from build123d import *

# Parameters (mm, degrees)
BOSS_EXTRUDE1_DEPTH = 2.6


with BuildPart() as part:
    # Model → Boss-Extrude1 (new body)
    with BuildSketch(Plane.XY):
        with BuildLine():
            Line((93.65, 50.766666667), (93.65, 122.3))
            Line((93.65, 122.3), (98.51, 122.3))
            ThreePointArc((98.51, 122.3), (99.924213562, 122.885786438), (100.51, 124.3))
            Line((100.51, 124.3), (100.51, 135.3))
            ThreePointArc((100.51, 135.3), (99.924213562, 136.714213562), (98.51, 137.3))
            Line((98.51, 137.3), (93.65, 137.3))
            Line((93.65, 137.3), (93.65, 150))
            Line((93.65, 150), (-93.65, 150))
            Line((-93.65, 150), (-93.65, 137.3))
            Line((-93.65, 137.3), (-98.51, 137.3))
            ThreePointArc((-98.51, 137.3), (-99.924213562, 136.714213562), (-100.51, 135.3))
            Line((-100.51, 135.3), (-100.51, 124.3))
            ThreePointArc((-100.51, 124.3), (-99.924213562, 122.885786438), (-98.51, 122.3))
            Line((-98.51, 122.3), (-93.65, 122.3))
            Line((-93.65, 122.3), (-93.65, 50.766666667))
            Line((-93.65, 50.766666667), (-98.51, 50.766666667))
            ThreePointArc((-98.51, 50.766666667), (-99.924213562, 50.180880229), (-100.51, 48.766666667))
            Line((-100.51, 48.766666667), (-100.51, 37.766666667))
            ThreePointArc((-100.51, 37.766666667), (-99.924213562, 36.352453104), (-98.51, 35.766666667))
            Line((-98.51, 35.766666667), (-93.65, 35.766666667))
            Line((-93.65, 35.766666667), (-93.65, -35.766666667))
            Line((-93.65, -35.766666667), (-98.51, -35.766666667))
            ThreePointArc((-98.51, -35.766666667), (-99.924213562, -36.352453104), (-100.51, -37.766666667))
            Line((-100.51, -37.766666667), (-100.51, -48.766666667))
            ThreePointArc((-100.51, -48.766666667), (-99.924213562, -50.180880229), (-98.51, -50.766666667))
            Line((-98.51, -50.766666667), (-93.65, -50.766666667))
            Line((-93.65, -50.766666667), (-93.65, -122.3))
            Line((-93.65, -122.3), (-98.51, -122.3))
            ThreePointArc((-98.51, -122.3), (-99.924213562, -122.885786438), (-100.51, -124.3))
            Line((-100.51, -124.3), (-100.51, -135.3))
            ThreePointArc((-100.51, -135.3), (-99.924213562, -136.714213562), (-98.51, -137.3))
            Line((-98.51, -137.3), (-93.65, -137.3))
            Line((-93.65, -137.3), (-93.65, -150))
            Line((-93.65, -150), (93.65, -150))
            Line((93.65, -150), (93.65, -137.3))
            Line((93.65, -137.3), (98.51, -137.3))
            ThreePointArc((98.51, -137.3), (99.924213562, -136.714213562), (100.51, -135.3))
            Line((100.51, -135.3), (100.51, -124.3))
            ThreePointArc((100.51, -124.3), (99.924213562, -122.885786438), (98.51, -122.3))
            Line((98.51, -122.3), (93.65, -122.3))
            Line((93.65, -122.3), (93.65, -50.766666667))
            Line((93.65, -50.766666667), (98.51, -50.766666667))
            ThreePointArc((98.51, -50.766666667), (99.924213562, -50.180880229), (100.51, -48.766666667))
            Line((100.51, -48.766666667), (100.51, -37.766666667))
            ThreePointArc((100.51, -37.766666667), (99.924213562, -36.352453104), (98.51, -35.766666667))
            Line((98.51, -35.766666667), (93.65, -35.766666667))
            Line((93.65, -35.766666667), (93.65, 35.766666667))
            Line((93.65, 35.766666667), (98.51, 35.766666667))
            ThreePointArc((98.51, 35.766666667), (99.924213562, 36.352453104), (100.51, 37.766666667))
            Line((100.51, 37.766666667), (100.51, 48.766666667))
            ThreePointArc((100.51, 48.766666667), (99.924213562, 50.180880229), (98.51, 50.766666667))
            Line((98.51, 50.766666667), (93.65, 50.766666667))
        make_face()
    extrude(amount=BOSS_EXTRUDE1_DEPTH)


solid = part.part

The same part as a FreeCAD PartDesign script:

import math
import FreeCAD as App
import Part
import Sketcher
from FreeCAD import Vector

doc = App.newDocument("Part")
body = doc.addObject("PartDesign::Body", "Body")

# Sketch on XY plane
sketch1 = body.newObject("Sketcher::SketchObject", "Sketch")
sketch1.AttachmentSupport = (doc.getObject("XY_Plane"), [""])
sketch1.MapMode = "FlatFace"
sketch1.addGeometry(Part.LineSegment(Vector(93.65, 50.766667, 0), Vector(93.65, 122.3, 0)), False)
sketch1.addGeometry(Part.LineSegment(Vector(93.65, 122.3, 0), Vector(98.51, 122.3, 0)), False)
sketch1.addGeometry(Part.ArcOfCircle(Part.Circle(Vector(98.51, 124.3, 0), Vector(0, 0, 1), 2), math.radians(-90), math.radians(0)), False)
sketch1.addGeometry(Part.LineSegment(Vector(100.51, 124.3, 0), Vector(100.51, 135.3, 0)), False)
sketch1.addGeometry(Part.ArcOfCircle(Part.Circle(Vector(98.51, 135.3, 0), Vector(0, 0, 1), 2), math.radians(0), math.radians(90)), False)
sketch1.addGeometry(Part.LineSegment(Vector(98.51, 137.3, 0), Vector(93.65, 137.3, 0)), False)
sketch1.addGeometry(Part.LineSegment(Vector(93.65, 137.3, 0), Vector(93.65, 150, 0)), False)
sketch1.addGeometry(Part.LineSegment(Vector(93.65, 150, 0), Vector(-93.65, 150, 0)), False)
sketch1.addGeometry(Part.LineSegment(Vector(-93.65, 150, 0), Vector(-93.65, 137.3, 0)), False)
sketch1.addGeometry(Part.LineSegment(Vector(-93.65, 137.3, 0), Vector(-98.51, 137.3, 0)), False)
sketch1.addGeometry(Part.ArcOfCircle(Part.Circle(Vector(-98.51, 135.3, 0), Vector(0, 0, 1), 2), math.radians(90), math.radians(180)), False)
sketch1.addGeometry(Part.LineSegment(Vector(-100.51, 135.3, 0), Vector(-100.51, 124.3, 0)), False)
sketch1.addGeometry(Part.ArcOfCircle(Part.Circle(Vector(-98.51, 124.3, 0), Vector(0, 0, 1), 2), math.radians(-180), math.radians(-90)), False)
sketch1.addGeometry(Part.LineSegment(Vector(-98.51, 122.3, 0), Vector(-93.65, 122.3, 0)), False)
sketch1.addGeometry(Part.LineSegment(Vector(-93.65, 122.3, 0), Vector(-93.65, 50.766667, 0)), False)
sketch1.addGeometry(Part.LineSegment(Vector(-93.65, 50.766667, 0), Vector(-98.51, 50.766667, 0)), False)
sketch1.addGeometry(Part.ArcOfCircle(Part.Circle(Vector(-98.51, 48.766667, 0), Vector(0, 0, 1), 2), math.radians(90), math.radians(180)), False)
sketch1.addGeometry(Part.LineSegment(Vector(-100.51, 48.766667, 0), Vector(-100.51, 37.766667, 0)), False)
sketch1.addGeometry(Part.ArcOfCircle(Part.Circle(Vector(-98.51, 37.766667, 0), Vector(0, 0, 1), 2), math.radians(180), math.radians(270)), False)
sketch1.addGeometry(Part.LineSegment(Vector(-98.51, 35.766667, 0), Vector(-93.65, 35.766667, 0)), False)
sketch1.addGeometry(Part.LineSegment(Vector(-93.65, 35.766667, 0), Vector(-93.65, -35.766667, 0)), False)
sketch1.addGeometry(Part.LineSegment(Vector(-93.65, -35.766667, 0), Vector(-98.51, -35.766667, 0)), False)
sketch1.addGeometry(Part.ArcOfCircle(Part.Circle(Vector(-98.51, -37.766667, 0), Vector(0, 0, 1), 2), math.radians(90), math.radians(180)), False)
sketch1.addGeometry(Part.LineSegment(Vector(-100.51, -37.766667, 0), Vector(-100.51, -48.766667, 0)), False)
sketch1.addGeometry(Part.ArcOfCircle(Part.Circle(Vector(-98.51, -48.766667, 0), Vector(0, 0, 1), 2), math.radians(-180), math.radians(-90)), False)
sketch1.addGeometry(Part.LineSegment(Vector(-98.51, -50.766667, 0), Vector(-93.65, -50.766667, 0)), False)
sketch1.addGeometry(Part.LineSegment(Vector(-93.65, -50.766667, 0), Vector(-93.65, -122.3, 0)), False)
sketch1.addGeometry(Part.LineSegment(Vector(-93.65, -122.3, 0), Vector(-98.51, -122.3, 0)), False)
sketch1.addGeometry(Part.ArcOfCircle(Part.Circle(Vector(-98.51, -124.3, 0), Vector(0, 0, 1), 2), math.radians(90), math.radians(180)), False)
sketch1.addGeometry(Part.LineSegment(Vector(-100.51, -124.3, 0), Vector(-100.51, -135.3, 0)), False)
sketch1.addGeometry(Part.ArcOfCircle(Part.Circle(Vector(-98.51, -135.3, 0), Vector(0, 0, 1), 2), math.radians(-180), math.radians(-90)), False)
sketch1.addGeometry(Part.LineSegment(Vector(-98.51, -137.3, 0), Vector(-93.65, -137.3, 0)), False)
sketch1.addGeometry(Part.LineSegment(Vector(-93.65, -137.3, 0), Vector(-93.65, -150, 0)), False)
sketch1.addGeometry(Part.LineSegment(Vector(-93.65, -150, 0), Vector(93.65, -150, 0)), False)
sketch1.addGeometry(Part.LineSegment(Vector(93.65, -150, 0), Vector(93.65, -137.3, 0)), False)
sketch1.addGeometry(Part.LineSegment(Vector(93.65, -137.3, 0), Vector(98.51, -137.3, 0)), False)
sketch1.addGeometry(Part.ArcOfCircle(Part.Circle(Vector(98.51, -135.3, 0), Vector(0, 0, 1), 2), math.radians(-90), math.radians(0)), False)
sketch1.addGeometry(Part.LineSegment(Vector(100.51, -135.3, 0), Vector(100.51, -124.3, 0)), False)
sketch1.addGeometry(Part.ArcOfCircle(Part.Circle(Vector(98.51, -124.3, 0), Vector(0, 0, 1), 2), math.radians(0), math.radians(90)), False)
sketch1.addGeometry(Part.LineSegment(Vector(98.51, -122.3, 0), Vector(93.65, -122.3, 0)), False)
sketch1.addGeometry(Part.LineSegment(Vector(93.65, -122.3, 0), Vector(93.65, -50.766667, 0)), False)
sketch1.addGeometry(Part.LineSegment(Vector(93.65, -50.766667, 0), Vector(98.51, -50.766667, 0)), False)
sketch1.addGeometry(Part.ArcOfCircle(Part.Circle(Vector(98.51, -48.766667, 0), Vector(0, 0, 1), 2), math.radians(-90), math.radians(0)), False)
sketch1.addGeometry(Part.LineSegment(Vector(100.51, -48.766667, 0), Vector(100.51, -37.766667, 0)), False)
sketch1.addGeometry(Part.ArcOfCircle(Part.Circle(Vector(98.51, -37.766667, 0), Vector(0, 0, 1), 2), math.radians(0), math.radians(90)), False)
sketch1.addGeometry(Part.LineSegment(Vector(98.51, -35.766667, 0), Vector(93.65, -35.766667, 0)), False)
sketch1.addGeometry(Part.LineSegment(Vector(93.65, -35.766667, 0), Vector(93.65, 35.766667, 0)), False)
sketch1.addGeometry(Part.LineSegment(Vector(93.65, 35.766667, 0), Vector(98.51, 35.766667, 0)), False)
sketch1.addGeometry(Part.ArcOfCircle(Part.Circle(Vector(98.51, 37.766667, 0), Vector(0, 0, 1), 2), math.radians(-90), math.radians(0)), False)
sketch1.addGeometry(Part.LineSegment(Vector(100.51, 37.766667, 0), Vector(100.51, 48.766667, 0)), False)
sketch1.addGeometry(Part.ArcOfCircle(Part.Circle(Vector(98.51, 48.766667, 0), Vector(0, 0, 1), 2), math.radians(0), math.radians(90)), False)
sketch1.addGeometry(Part.LineSegment(Vector(98.51, 50.766667, 0), Vector(93.65, 50.766667, 0)), False)
sketch1.addConstraint(Sketcher.Constraint("Coincident", 0, 2, 1, 1))
sketch1.addConstraint(Sketcher.Constraint("Tangent", 1, 2, 2, 1))
sketch1.addConstraint(Sketcher.Constraint("Tangent", 2, 2, 3, 1))
sketch1.addConstraint(Sketcher.Constraint("Tangent", 3, 2, 4, 1))
sketch1.addConstraint(Sketcher.Constraint("Tangent", 4, 2, 5, 1))
sketch1.addConstraint(Sketcher.Constraint("Coincident", 5, 2, 6, 1))
sketch1.addConstraint(Sketcher.Constraint("Coincident", 6, 2, 7, 1))
sketch1.addConstraint(Sketcher.Constraint("Coincident", 7, 2, 8, 1))
sketch1.addConstraint(Sketcher.Constraint("Coincident", 8, 2, 9, 1))
sketch1.addConstraint(Sketcher.Constraint("Tangent", 9, 2, 10, 1))
sketch1.addConstraint(Sketcher.Constraint("Tangent", 10, 2, 11, 1))
sketch1.addConstraint(Sketcher.Constraint("Tangent", 11, 2, 12, 1))
sketch1.addConstraint(Sketcher.Constraint("Tangent", 12, 2, 13, 1))
sketch1.addConstraint(Sketcher.Constraint("Coincident", 13, 2, 14, 1))
sketch1.addConstraint(Sketcher.Constraint("Coincident", 14, 2, 15, 1))
sketch1.addConstraint(Sketcher.Constraint("Tangent", 15, 2, 16, 1))
sketch1.addConstraint(Sketcher.Constraint("Tangent", 16, 2, 17, 1))
sketch1.addConstraint(Sketcher.Constraint("Tangent", 17, 2, 18, 1))
sketch1.addConstraint(Sketcher.Constraint("Tangent", 18, 2, 19, 1))
sketch1.addConstraint(Sketcher.Constraint("Coincident", 19, 2, 20, 1))
sketch1.addConstraint(Sketcher.Constraint("Coincident", 20, 2, 21, 1))
sketch1.addConstraint(Sketcher.Constraint("Tangent", 21, 2, 22, 1))
sketch1.addConstraint(Sketcher.Constraint("Tangent", 22, 2, 23, 1))
sketch1.addConstraint(Sketcher.Constraint("Tangent", 23, 2, 24, 1))
sketch1.addConstraint(Sketcher.Constraint("Tangent", 24, 2, 25, 1))
sketch1.addConstraint(Sketcher.Constraint("Coincident", 25, 2, 26, 1))
sketch1.addConstraint(Sketcher.Constraint("Coincident", 26, 2, 27, 1))
sketch1.addConstraint(Sketcher.Constraint("Tangent", 27, 2, 28, 1))
sketch1.addConstraint(Sketcher.Constraint("Tangent", 28, 2, 29, 1))
sketch1.addConstraint(Sketcher.Constraint("Tangent", 29, 2, 30, 1))
sketch1.addConstraint(Sketcher.Constraint("Tangent", 30, 2, 31, 1))
sketch1.addConstraint(Sketcher.Constraint("Coincident", 31, 2, 32, 1))
sketch1.addConstraint(Sketcher.Constraint("Coincident", 32, 2, 33, 1))
sketch1.addConstraint(Sketcher.Constraint("Coincident", 33, 2, 34, 1))
sketch1.addConstraint(Sketcher.Constraint("Coincident", 34, 2, 35, 1))
sketch1.addConstraint(Sketcher.Constraint("Tangent", 35, 2, 36, 1))
sketch1.addConstraint(Sketcher.Constraint("Tangent", 36, 2, 37, 1))
sketch1.addConstraint(Sketcher.Constraint("Tangent", 37, 2, 38, 1))
sketch1.addConstraint(Sketcher.Constraint("Tangent", 38, 2, 39, 1))
sketch1.addConstraint(Sketcher.Constraint("Coincident", 39, 2, 40, 1))
sketch1.addConstraint(Sketcher.Constraint("Coincident", 40, 2, 41, 1))
sketch1.addConstraint(Sketcher.Constraint("Tangent", 41, 2, 42, 1))
sketch1.addConstraint(Sketcher.Constraint("Tangent", 42, 2, 43, 1))
sketch1.addConstraint(Sketcher.Constraint("Tangent", 43, 2, 44, 1))
sketch1.addConstraint(Sketcher.Constraint("Tangent", 44, 2, 45, 1))
sketch1.addConstraint(Sketcher.Constraint("Coincident", 45, 2, 46, 1))
sketch1.addConstraint(Sketcher.Constraint("Coincident", 46, 2, 47, 1))
sketch1.addConstraint(Sketcher.Constraint("Tangent", 47, 2, 48, 1))
sketch1.addConstraint(Sketcher.Constraint("Tangent", 48, 2, 49, 1))
sketch1.addConstraint(Sketcher.Constraint("Tangent", 49, 2, 50, 1))
sketch1.addConstraint(Sketcher.Constraint("Tangent", 50, 2, 51, 1))
sketch1.addConstraint(Sketcher.Constraint("Coincident", 51, 2, 0, 1))
sketch1.addConstraint(Sketcher.Constraint("Vertical", 0))
sketch1.addConstraint(Sketcher.Constraint("Horizontal", 1))
sketch1.addConstraint(Sketcher.Constraint("Vertical", 3))
sketch1.addConstraint(Sketcher.Constraint("Horizontal", 5))
sketch1.addConstraint(Sketcher.Constraint("Vertical", 6))
sketch1.addConstraint(Sketcher.Constraint("Horizontal", 7))
sketch1.addConstraint(Sketcher.Constraint("Vertical", 8))
sketch1.addConstraint(Sketcher.Constraint("Horizontal", 9))
sketch1.addConstraint(Sketcher.Constraint("Vertical", 11))
sketch1.addConstraint(Sketcher.Constraint("Horizontal", 13))
sketch1.addConstraint(Sketcher.Constraint("Vertical", 14))
sketch1.addConstraint(Sketcher.Constraint("Horizontal", 15))
sketch1.addConstraint(Sketcher.Constraint("Vertical", 17))
sketch1.addConstraint(Sketcher.Constraint("Horizontal", 19))
sketch1.addConstraint(Sketcher.Constraint("Vertical", 20))
sketch1.addConstraint(Sketcher.Constraint("Horizontal", 21))
sketch1.addConstraint(Sketcher.Constraint("Vertical", 23))
sketch1.addConstraint(Sketcher.Constraint("Horizontal", 25))
sketch1.addConstraint(Sketcher.Constraint("Vertical", 26))
sketch1.addConstraint(Sketcher.Constraint("Horizontal", 27))
sketch1.addConstraint(Sketcher.Constraint("Vertical", 29))
sketch1.addConstraint(Sketcher.Constraint("Horizontal", 31))
sketch1.addConstraint(Sketcher.Constraint("Vertical", 32))
sketch1.addConstraint(Sketcher.Constraint("Horizontal", 33))
sketch1.addConstraint(Sketcher.Constraint("Vertical", 34))
sketch1.addConstraint(Sketcher.Constraint("Horizontal", 35))
sketch1.addConstraint(Sketcher.Constraint("Vertical", 37))
sketch1.addConstraint(Sketcher.Constraint("Horizontal", 39))
sketch1.addConstraint(Sketcher.Constraint("Vertical", 40))
sketch1.addConstraint(Sketcher.Constraint("Horizontal", 41))
sketch1.addConstraint(Sketcher.Constraint("Vertical", 43))
sketch1.addConstraint(Sketcher.Constraint("Horizontal", 45))
sketch1.addConstraint(Sketcher.Constraint("Vertical", 46))
sketch1.addConstraint(Sketcher.Constraint("Horizontal", 47))
sketch1.addConstraint(Sketcher.Constraint("Vertical", 49))
sketch1.addConstraint(Sketcher.Constraint("Horizontal", 51))
sketch1.addConstraint(Sketcher.Constraint("Equal", 2, 4))
sketch1.addConstraint(Sketcher.Constraint("Equal", 4, 10))
sketch1.addConstraint(Sketcher.Constraint("Equal", 10, 12))
sketch1.addConstraint(Sketcher.Constraint("Equal", 12, 16))
sketch1.addConstraint(Sketcher.Constraint("Equal", 16, 18))
sketch1.addConstraint(Sketcher.Constraint("Equal", 18, 22))
sketch1.addConstraint(Sketcher.Constraint("Equal", 22, 24))
sketch1.addConstraint(Sketcher.Constraint("Equal", 24, 28))
sketch1.addConstraint(Sketcher.Constraint("Equal", 28, 30))
sketch1.addConstraint(Sketcher.Constraint("Equal", 30, 36))
sketch1.addConstraint(Sketcher.Constraint("Equal", 36, 38))
sketch1.addConstraint(Sketcher.Constraint("Equal", 38, 42))
sketch1.addConstraint(Sketcher.Constraint("Equal", 42, 44))
sketch1.addConstraint(Sketcher.Constraint("Equal", 44, 48))
sketch1.addConstraint(Sketcher.Constraint("Equal", 48, 50))
sketch1.addConstraint(Sketcher.Constraint("Symmetric", 2, 3, 28, 3, -1, 1))
sketch1.addConstraint(Sketcher.Constraint("Symmetric", 10, 3, 36, 3, -1, 1))
sketch1.addConstraint(Sketcher.Constraint("Symmetric", 16, 3, 42, 3, -1, 1))
sketch1.addConstraint(Sketcher.Constraint("Symmetric", 22, 3, 48, 3, -1, 1))
sketch1.addConstraint(Sketcher.Constraint("Symmetric", 5, 2, 31, 2, -1, 1))
sketch1.addConstraint(Sketcher.Constraint("Symmetric", 7, 2, 33, 2, -1, 1))
sketch1.addConstraint(Sketcher.Constraint("Symmetric", 13, 2, 39, 2, -1, 1))
sketch1.addConstraint(Sketcher.Constraint("Symmetric", 19, 2, 45, 2, -1, 1))
sketch1.addConstraint(Sketcher.Constraint("Symmetric", 25, 2, 51, 2, -1, 1))
sketch1.addConstraint(Sketcher.Constraint("Symmetric", 4, 3, 10, 3, -2))
sketch1.addConstraint(Sketcher.Constraint("Symmetric", 24, 3, 42, 3, -2))
sketch1.addConstraint(Sketcher.Constraint("Symmetric", 0, 2, 13, 2, -2))
sketch1.addConstraint(Sketcher.Constraint("Horizontal", 22, 3, 44, 3))
sketch1.addConstraint(Sketcher.Constraint("Vertical", 12, 3, 16, 3))
sketch1.addConstraint(Sketcher.Constraint("Vertical", 0, 2, 5, 2))
sketch1.addConstraint(Sketcher.Constraint("Vertical", 8, 2, 13, 2))
sketch1.addConstraint(Sketcher.Constraint("Vertical", 14, 2, 19, 2))
sketch1.addConstraint(Sketcher.Constraint("Equal", 11, 17))
sketch1.addConstraint(Sketcher.Constraint("Equal", 14, 20))
sketch1.addConstraint(Sketcher.Constraint("Radius", 2, 2.0))
sketch1.addConstraint(Sketcher.Constraint("DistanceY", 3, 1, 3, 2, 11.0))
sketch1.addConstraint(Sketcher.Constraint("DistanceX", 7, 2, 7, 1, 187.3))
sketch1.addConstraint(Sketcher.Constraint("DistanceY", 6, 1, 6, 2, 12.7))
sketch1.addConstraint(Sketcher.Constraint("DistanceY", -1, 1, 6, 2, 150.0))
sketch1.addConstraint(Sketcher.Constraint("DistanceX", 1, 1, 1, 2, 4.86))
pad1 = body.newObject("PartDesign::Pad", "Pad")
pad1.Profile = sketch1
pad1.Length = 2.6

doc.recompute()
